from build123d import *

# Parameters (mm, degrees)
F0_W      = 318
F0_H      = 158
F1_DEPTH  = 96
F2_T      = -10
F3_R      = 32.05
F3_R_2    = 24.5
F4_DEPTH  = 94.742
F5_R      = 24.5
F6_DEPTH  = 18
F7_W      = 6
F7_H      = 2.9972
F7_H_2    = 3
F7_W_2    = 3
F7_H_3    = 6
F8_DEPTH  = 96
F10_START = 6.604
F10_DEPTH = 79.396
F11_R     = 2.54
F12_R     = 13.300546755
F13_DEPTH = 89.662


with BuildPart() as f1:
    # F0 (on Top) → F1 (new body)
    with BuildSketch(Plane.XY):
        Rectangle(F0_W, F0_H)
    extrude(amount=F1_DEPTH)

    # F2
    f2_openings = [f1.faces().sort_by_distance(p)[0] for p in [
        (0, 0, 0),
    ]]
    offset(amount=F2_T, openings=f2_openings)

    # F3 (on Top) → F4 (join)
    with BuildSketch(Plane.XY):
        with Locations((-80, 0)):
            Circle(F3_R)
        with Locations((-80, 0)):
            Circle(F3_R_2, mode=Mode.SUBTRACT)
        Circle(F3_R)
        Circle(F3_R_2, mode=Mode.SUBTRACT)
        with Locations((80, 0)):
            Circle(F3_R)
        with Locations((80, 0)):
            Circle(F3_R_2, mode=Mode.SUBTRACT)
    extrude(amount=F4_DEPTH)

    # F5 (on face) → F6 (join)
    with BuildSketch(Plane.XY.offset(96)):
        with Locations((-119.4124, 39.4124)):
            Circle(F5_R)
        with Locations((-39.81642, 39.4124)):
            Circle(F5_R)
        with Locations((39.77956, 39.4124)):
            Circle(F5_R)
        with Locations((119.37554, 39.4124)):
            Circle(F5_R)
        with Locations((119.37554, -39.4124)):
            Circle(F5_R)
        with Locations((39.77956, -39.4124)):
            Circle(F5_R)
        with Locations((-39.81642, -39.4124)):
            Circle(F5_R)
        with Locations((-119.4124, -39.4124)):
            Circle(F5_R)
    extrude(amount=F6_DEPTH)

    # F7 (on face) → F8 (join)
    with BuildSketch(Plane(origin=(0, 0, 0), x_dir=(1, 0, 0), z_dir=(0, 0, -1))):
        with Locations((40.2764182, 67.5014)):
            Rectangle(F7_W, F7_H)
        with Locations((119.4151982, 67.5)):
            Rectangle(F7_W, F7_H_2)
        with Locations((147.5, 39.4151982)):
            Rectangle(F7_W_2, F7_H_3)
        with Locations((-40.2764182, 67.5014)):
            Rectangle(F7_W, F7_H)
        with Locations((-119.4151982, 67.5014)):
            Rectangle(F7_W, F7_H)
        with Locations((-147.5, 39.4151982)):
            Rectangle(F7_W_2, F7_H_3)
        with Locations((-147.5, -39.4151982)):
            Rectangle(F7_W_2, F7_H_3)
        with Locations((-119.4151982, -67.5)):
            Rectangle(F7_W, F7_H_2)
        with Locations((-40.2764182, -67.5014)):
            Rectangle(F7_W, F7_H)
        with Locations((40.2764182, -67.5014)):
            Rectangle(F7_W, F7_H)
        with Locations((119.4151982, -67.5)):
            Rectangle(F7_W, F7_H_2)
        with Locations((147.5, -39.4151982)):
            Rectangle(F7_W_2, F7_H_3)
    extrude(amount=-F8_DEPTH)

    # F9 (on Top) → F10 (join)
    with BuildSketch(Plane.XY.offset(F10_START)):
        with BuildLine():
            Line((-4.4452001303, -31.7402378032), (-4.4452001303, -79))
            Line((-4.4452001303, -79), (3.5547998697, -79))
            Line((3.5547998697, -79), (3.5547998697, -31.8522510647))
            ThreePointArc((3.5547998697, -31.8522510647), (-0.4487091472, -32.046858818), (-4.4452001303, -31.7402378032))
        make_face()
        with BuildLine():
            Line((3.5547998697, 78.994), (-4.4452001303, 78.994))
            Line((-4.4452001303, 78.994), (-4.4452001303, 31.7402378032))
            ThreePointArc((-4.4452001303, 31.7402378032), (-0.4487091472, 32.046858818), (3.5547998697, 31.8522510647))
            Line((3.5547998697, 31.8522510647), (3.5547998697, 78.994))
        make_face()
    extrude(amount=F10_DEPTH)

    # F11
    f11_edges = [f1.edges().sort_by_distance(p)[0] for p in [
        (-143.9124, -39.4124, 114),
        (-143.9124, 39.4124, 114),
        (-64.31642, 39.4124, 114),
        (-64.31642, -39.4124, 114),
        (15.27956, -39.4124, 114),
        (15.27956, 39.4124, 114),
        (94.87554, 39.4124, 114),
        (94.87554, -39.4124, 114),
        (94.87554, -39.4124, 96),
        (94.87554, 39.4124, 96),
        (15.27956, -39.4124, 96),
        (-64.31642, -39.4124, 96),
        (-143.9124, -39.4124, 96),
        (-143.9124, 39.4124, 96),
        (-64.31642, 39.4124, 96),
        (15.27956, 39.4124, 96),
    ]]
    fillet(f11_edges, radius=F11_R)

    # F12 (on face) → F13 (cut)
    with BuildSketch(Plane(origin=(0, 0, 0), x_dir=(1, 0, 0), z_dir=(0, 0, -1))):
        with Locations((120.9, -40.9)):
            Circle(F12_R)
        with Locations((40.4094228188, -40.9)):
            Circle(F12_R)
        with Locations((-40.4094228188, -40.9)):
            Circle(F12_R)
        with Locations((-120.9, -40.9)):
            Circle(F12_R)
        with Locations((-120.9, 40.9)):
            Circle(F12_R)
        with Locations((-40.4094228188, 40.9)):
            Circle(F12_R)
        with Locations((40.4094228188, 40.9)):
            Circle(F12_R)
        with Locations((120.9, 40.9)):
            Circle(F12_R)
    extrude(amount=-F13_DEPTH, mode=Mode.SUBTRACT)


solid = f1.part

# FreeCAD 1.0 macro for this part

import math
import FreeCAD as App
import Part
import Sketcher


def edges_at(feature, points):
    """Names of the edges that pass closest to the given points."""
    edges = feature.Shape.Edges
    near = lambda p: min(range(len(edges)), key=lambda i: edges[i].distToShape(Part.Vertex(*p))[0])
    return sorted({f"Edge{near(p) + 1}" for p in points})


def faces_at(feature, points):
    """Names of the faces that lie closest to the given points."""
    faces = feature.Shape.Faces
    near = lambda p: min(range(len(faces)), key=lambda i: faces[i].distToShape(Part.Vertex(*p))[0])
    return sorted({f"Face{near(p) + 1}" for p in points})

doc = App.newDocument("Part")
body = doc.addObject("PartDesign::Body", "Body")

# Sketch on XY plane
sketch1 = body.newObject("Sketcher::SketchObject", "Sketch")
sketch1.AttachmentSupport = (doc.getObject("XY_Plane"), [""])
sketch1.MapMode = "FlatFace"
sketch1.addGeometry([
    Part.LineSegment(App.Vector(-159, 79, 0), App.Vector(-159, -79, 0)),
    Part.LineSegment(App.Vector(-159, -79, 0), App.Vector(159, -79, 0)),
    Part.LineSegment(App.Vector(159, -79, 0), App.Vector(159, 79, 0)),
    Part.LineSegment(App.Vector(159, 79, 0), App.Vector(-159, 79, 0)),
], False)
sketch1.addConstraint([
    Sketcher.Constraint("Coincident", 0, 2, 1, 1),
    Sketcher.Constraint("Coincident", 1, 2, 2, 1),
    Sketcher.Constraint("Coincident", 2, 2, 3, 1),
    Sketcher.Constraint("Coincident", 3, 2, 0, 1),
    Sketcher.Constraint("Vertical", 0),
    Sketcher.Constraint("Horizontal", 1),
    Sketcher.Constraint("Vertical", 2),
    Sketcher.Constraint("Horizontal", 3),
    Sketcher.Constraint("Symmetric", 0, 2, 2, 2, -1, 1),
    Sketcher.Constraint("DistanceX", 1, 1, 1, 2, 318.0),
    Sketcher.Constraint("DistanceY", 0, 2, 0, 1, 158.0),
])
pad1 = body.newObject("PartDesign::Pad", "Pad")
pad1.Profile = sketch1
pad1.Length = 96
doc.recompute()

thickness = body.newObject("PartDesign::Thickness", "Thickness")
thickness.Base = (pad1, faces_at(pad1, [(0, 0, 0)]))
thickness.Value = 10
thickness.Reversed = True
thickness.Join = "Arc"

# Sketch on XY plane
sketch2 = body.newObject("Sketcher::SketchObject", "Sketch001")
sketch2.AttachmentSupport = (doc.getObject("XY_Plane"), [""])
sketch2.MapMode = "FlatFace"
sketch2.addGeometry([
    Part.Circle(App.Vector(-80, 0, 0), App.Vector(0, 0, 1), 32),  # 0
    Part.Circle(App.Vector(-80, 0, 0), App.Vector(0, 0, 1), 24),  # 1
    Part.Circle(App.Vector(0, 0, 0), App.Vector(0, 0, 1), 32),  # 2
    Part.Circle(App.Vector(0, 0, 0), App.Vector(0, 0, 1), 24),  # 3
    Part.Circle(App.Vector(80, 0, 0), App.Vector(0, 0, 1), 32),  # 4
    Part.Circle(App.Vector(80, 0, 0), App.Vector(0, 0, 1), 24),  # 5
], False)
sketch2.addConstraint([
    Sketcher.Constraint("Coincident", 2, 3, -1, 1),
    Sketcher.Constraint("Coincident", 3, 3, -1, 1),
    Sketcher.Constraint("Coincident", 1, 3, 0, 3),
    Sketcher.Constraint("Coincident", 5, 3, 4, 3),
    Sketcher.Constraint("Equal", 0, 2),
    Sketcher.Constraint("Equal", 1, 3),
    Sketcher.Constraint("Equal", 2, 4),
    Sketcher.Constraint("Equal", 3, 5),
    Sketcher.Constraint("Symmetric", 0, 3, 4, 3, -1, 1),
    Sketcher.Constraint("PointOnObject", 0, 3, -1),
    Sketcher.Constraint("Diameter", 1, 49.0),
    Sketcher.Constraint("Diameter", 0, 64.1),
    Sketcher.Constraint("DistanceX", 0, 3, -1, 1, 80.0),
])
pad2 = body.newObject("PartDesign::Pad", "Pad001")
pad2.Profile = sketch2
pad2.Length = 94.742

# Sketch on XY plane
sketch3 = body.newObject("Sketcher::SketchObject", "Sketch002")
sketch3.AttachmentSupport = (doc.getObject("XY_Plane"), [""])
sketch3.MapMode = "FlatFace"
sketch3.AttachmentOffset = App.Placement(App.Vector(0, 0, 96), App.Rotation())
sketch3.addGeometry([
    Part.Circle(App.Vector(-119, 39, 0), App.Vector(0, 0, 1), 24),  # 0
    Part.Circle(App.Vector(-40, 39, 0), App.Vector(0, 0, 1), 24),  # 1
    Part.Circle(App.Vector(40, 39, 0), App.Vector(0, 0, 1), 24),  # 2
    Part.Circle(App.Vector(119, 39, 0), App.Vector(0, 0, 1), 24),  # 3
    Part.Circle(App.Vector(119, -39, 0), App.Vector(0, 0, 1), 24),  # 4
    Part.Circle(App.Vector(40, -39, 0), App.Vector(0, 0, 1), 24),  # 5
    Part.Circle(App.Vector(-40, -39, 0), App.Vector(0, 0, 1), 24),  # 6
    Part.Circle(App.Vector(-119, -39, 0), App.Vector(0, 0, 1), 24),  # 7
], False)
sketch3.addConstraint([
    Sketcher.Constraint("Equal", 0, 1),
    Sketcher.Constraint("Equal", 1, 2),
    Sketcher.Constraint("Equal", 2, 3),
    Sketcher.Constraint("Equal", 3, 4),
    Sketcher.Constraint("Equal", 4, 5),
    Sketcher.Constraint("Equal", 5, 6),
    Sketcher.Constraint("Equal", 6, 7),
    Sketcher.Constraint("Symmetric", 3, 3, 4, 3, -1),
    Sketcher.Constraint("Symmetric", 2, 3, 5, 3, -1),
    Sketcher.Constraint("Symmetric", 1, 3, 6, 3, -1),
    Sketcher.Constraint("Symmetric", 0, 3, 7, 3, -1),
    Sketcher.Constraint("Horizontal", 0, 3, 1, 3),
    Sketcher.Constraint("Horizontal", 1, 3, 2, 3),
    Sketcher.Constraint("Horizontal", 2, 3, 3, 3),
    Sketcher.Constraint("Diameter", 0, 49.0),
    Sketcher.Constraint("DistanceX", 0, 3, -1, 1, 119.4124),
    Sketcher.Constraint("DistanceY", -1, 1, 0, 3, 39.4124),
    Sketcher.Constraint("DistanceX", 1, 3, -1, 1, 39.81642),
    Sketcher.Constraint("DistanceX", -1, 1, 2, 3, 39.77956),
    Sketcher.Constraint("DistanceX", -1, 1, 3, 3, 119.37554),
])
pad3 = body.newObject("PartDesign::Pad", "Pad002")
pad3.Profile = sketch3
pad3.Length = 18

# Sketch on XY plane
sketch4 = body.newObject("Sketcher::SketchObject", "Sketch003")
sketch4.AttachmentSupport = (doc.getObject("XY_Plane"), [""])
sketch4.MapMode = "FlatFace"
sketch4.addGeometry([
    Part.LineSegment(App.Vector(37.3, -69, 0), App.Vector(37.3, -66, 0)),  # 0
    Part.LineSegment(App.Vector(37.3, -66, 0), App.Vector(43.3, -66, 0)),  # 1
    Part.LineSegment(App.Vector(43.3, -66, 0), App.Vector(43.3, -69, 0)),  # 2
    Part.LineSegment(App.Vector(43.3, -69, 0), App.Vector(37.3, -69, 0)),  # 3
    Part.LineSegment(App.Vector(116.4, -69, 0), App.Vector(116.4, -66, 0)),  # 4
    Part.LineSegment(App.Vector(116.4, -66, 0), App.Vector(122.4, -66, 0)),  # 5
    Part.LineSegment(App.Vector(122.4, -66, 0), App.Vector(122.4, -69, 0)),  # 6
    Part.LineSegment(App.Vector(122.4, -69, 0), App.Vector(116.4, -69, 0)),  # 7
    Part.LineSegment(App.Vector(146, -42.4, 0), App.Vector(146, -36.4, 0)),  # 8
    Part.LineSegment(App.Vector(146, -36.4, 0), App.Vector(149, -36.4, 0)),  # 9
    Part.LineSegment(App.Vector(149, -36.4, 0), App.Vector(149, -42.4, 0)),  # 10
    Part.LineSegment(App.Vector(149, -42.4, 0), App.Vector(146, -42.4, 0)),  # 11
    Part.LineSegment(App.Vector(-43.3, -69, 0), App.Vector(-43.3, -66, 0)),  # 12
    Part.LineSegment(App.Vector(-43.3, -66, 0), App.Vector(-37.3, -66, 0)),  # 13
    Part.LineSegment(App.Vector(-37.3, -66, 0), App.Vector(-37.3, -69, 0)),  # 14
    Part.LineSegment(App.Vector(-37.3, -69, 0), App.Vector(-43.3, -69, 0)),  # 15
    Part.LineSegment(App.Vector(-122.4, -69, 0), App.Vector(-122.4, -66, 0)),  # 16
    Part.LineSegment(App.Vector(-122.4, -66, 0), App.Vector(-116.4, -66, 0)),  # 17
    Part.LineSegment(App.Vector(-116.4, -66, 0), App.Vector(-116.4, -69, 0)),  # 18
    Part.LineSegment(App.Vector(-116.4, -69, 0), App.Vector(-122.4, -69, 0)),  # 19
    Part.LineSegment(App.Vector(-149, -42.4, 0), App.Vector(-149, -36.4, 0)),  # 20
    Part.LineSegment(App.Vector(-149, -36.4, 0), App.Vector(-146, -36.4, 0)),  # 21
    Part.LineSegment(App.Vector(-146, -36.4, 0), App.Vector(-146, -42.4, 0)),  # 22
    Part.LineSegment(App.Vector(-146, -42.4, 0), App.Vector(-149, -42.4, 0)),  # 23
    Part.LineSegment(App.Vector(-149, 36.4, 0), App.Vector(-149, 42.4, 0)),  # 24
    Part.LineSegment(App.Vector(-149, 42.4, 0), App.Vector(-146, 42.4, 0)),  # 25
    Part.LineSegment(App.Vector(-146, 42.4, 0), App.Vector(-146, 36.4, 0)),  # 26
    Part.LineSegment(App.Vector(-146, 36.4, 0), App.Vector(-149, 36.4, 0)),  # 27
    Part.LineSegment(App.Vector(-122.4, 66, 0), App.Vector(-122.4, 69, 0)),  # 28
    Part.LineSegment(App.Vector(-122.4, 69, 0), App.Vector(-116.4, 69, 0)),  # 29
    Part.LineSegment(App.Vector(-116.4, 69, 0), App.Vector(-116.4, 66, 0)),  # 30
    Part.LineSegment(App.Vector(-116.4, 66, 0), App.Vector(-122.4, 66, 0)),  # 31
    Part.LineSegment(App.Vector(-43.3, 66, 0), App.Vector(-43.3, 69, 0)),  # 32
    Part.LineSegment(App.Vector(-43.3, 69, 0), App.Vector(-37.3, 69, 0)),  # 33
    Part.LineSegment(App.Vector(-37.3, 69, 0), App.Vector(-37.3, 66, 0)),  # 34
    Part.LineSegment(App.Vector(-37.3, 66, 0), App.Vector(-43.3, 66, 0)),  # 35
    Part.LineSegment(App.Vector(37.3, 66, 0), App.Vector(37.3, 69, 0)),  # 36
    Part.LineSegment(App.Vector(37.3, 69, 0), App.Vector(43.3, 69, 0)),  # 37
    Part.LineSegment(App.Vector(43.3, 69, 0), App.Vector(43.3, 66, 0)),  # 38
    Part.LineSegment(App.Vector(43.3, 66, 0), App.Vector(37.3, 66, 0)),  # 39
    Part.LineSegment(App.Vector(116.4, 66, 0), App.Vector(116.4, 69, 0)),  # 40
    Part.LineSegment(App.Vector(116.4, 69, 0), App.Vector(122.4, 69, 0)),  # 41
    Part.LineSegment(App.Vector(122.4, 69, 0), App.Vector(122.4, 66, 0)),  # 42
    Part.LineSegment(App.Vector(122.4, 66, 0), App.Vector(116.4, 66, 0)),  # 43
    Part.LineSegment(App.Vector(146, 36.4, 0), App.Vector(146, 42.4, 0)),  # 44
    Part.LineSegment(App.Vector(146, 42.4, 0), App.Vector(149, 42.4, 0)),  # 45
    Part.LineSegment(App.Vector(149, 42.4, 0), App.Vector(149, 36.4, 0)),  # 46
    Part.LineSegment(App.Vector(149, 36.4, 0), App.Vector(146, 36.4, 0)),  # 47
], False)
sketch4.addConstraint([
    Sketcher.Constraint("Coincident", 0, 2, 1, 1),
    Sketcher.Constraint("Coincident", 1, 2, 2, 1),
    Sketcher.Constraint("Coincident", 2, 2, 3, 1),
    Sketcher.Constraint("Coincident", 3, 2, 0, 1),
    Sketcher.Constraint("Coincident", 4, 2, 5, 1),
    Sketcher.Constraint("Coincident", 5, 2, 6, 1),
    Sketcher.Constraint("Coincident", 6, 2, 7, 1),
    Sketcher.Constraint("Coincident", 7, 2, 4, 1),
    Sketcher.Constraint("Coincident", 8, 2, 9, 1),
    Sketcher.Constraint("Coincident", 9, 2, 10, 1),
    Sketcher.Constraint("Coincident", 10, 2, 11, 1),
    Sketcher.Constraint("Coincident", 11, 2, 8, 1),
    Sketcher.Constraint("Coincident", 12, 2, 13, 1),
    Sketcher.Constraint("Coincident", 13, 2, 14, 1),
    Sketcher.Constraint("Coincident", 14, 2, 15, 1),
    Sketcher.Constraint("Coincident", 15, 2, 12, 1),
    Sketcher.Constraint("Coincident", 16, 2, 17, 1),
    Sketcher.Constraint("Coincident", 17, 2, 18, 1),
    Sketcher.Constraint("Coincident", 18, 2, 19, 1),
    Sketcher.Constraint("Coincident", 19, 2, 16, 1),
    Sketcher.Constraint("Coincident", 20, 2, 21, 1),
    Sketcher.Constraint("Coincident", 21, 2, 22, 1),
    Sketcher.Constraint("Coincident", 22, 2, 23, 1),
    Sketcher.Constraint("Coincident", 23, 2, 20, 1),
    Sketcher.Constraint("Coincident", 24, 2, 25, 1),
    Sketcher.Constraint("Coincident", 25, 2, 26, 1),
    Sketcher.Constraint("Coincident", 26, 2, 27, 1),
    Sketcher.Constraint("Coincident", 27, 2, 24, 1),
    Sketcher.Constraint("Coincident", 28, 2, 29, 1),
    Sketcher.Constraint("Coincident", 29, 2, 30, 1),
    Sketcher.Constraint("Coincident", 30, 2, 31, 1),
    Sketcher.Constraint("Coincident", 31, 2, 28, 1),
    Sketcher.Constraint("Coincident", 32, 2, 33, 1),
    Sketcher.Constraint("Coincident", 33, 2, 34, 1),
    Sketcher.Constraint("Coincident", 34, 2, 35, 1),
    Sketcher.Constraint("Coincident", 35, 2, 32, 1),
    Sketcher.Constraint("Coincident", 36, 2, 37, 1),
    Sketcher.Constraint("Coincident", 37, 2, 38, 1),
    Sketcher.Constraint("Coincident", 38, 2, 39, 1),
    Sketcher.Constraint("Coincident", 39, 2, 36, 1),
    Sketcher.Constraint("Coincident", 40, 2, 41, 1),
    Sketcher.Constraint("Coincident", 41, 2, 42, 1),
    Sketcher.Constraint("Coincident", 42, 2, 43, 1),
    Sketcher.Constraint("Coincident", 43, 2, 40, 1),
    Sketcher.Constraint("Coincident", 44, 2, 45, 1),
    Sketcher.Constraint("Coincident", 45, 2, 46, 1),
    Sketcher.Constraint("Coincident", 46, 2, 47, 1),
    Sketcher.Constraint("Coincident", 47, 2, 44, 1),
    Sketcher.Constraint("Vertical", 0),
    Sketcher.Constraint("Horizontal", 1),
    Sketcher.Constraint("Vertical", 2),
    Sketcher.Constraint("Horizontal", 3),
    Sketcher.Constraint("Vertical", 4),
    Sketcher.Constraint("Horizontal", 5),
    Sketcher.Constraint("Vertical", 6),
    Sketcher.Constraint("Horizontal", 7),
    Sketcher.Constraint("Vertical", 8),
    Sketcher.Constraint("Horizontal", 9),
    Sketcher.Constraint("Vertical", 10),
    Sketcher.Constraint("Horizontal", 11),
    Sketcher.Constraint("Vertical", 12),
    Sketcher.Constraint("Horizontal", 13),
    Sketcher.Constraint("Vertical", 14),
    Sketcher.Constraint("Horizontal", 15),
    Sketcher.Constraint("Vertical", 16),
    Sketcher.Constraint("Horizontal", 17),
    Sketcher.Constraint("Vertical", 18),
    Sketcher.Constraint("Horizontal", 19),
    Sketcher.Constraint("Vertical", 20),
    Sketcher.Constraint("Horizontal", 21),
    Sketcher.Constraint("Vertical", 22),
    Sketcher.Constraint("Horizontal", 23),
    Sketcher.Constraint("Vertical", 24),
    Sketcher.Constraint("Horizontal", 25),
    Sketcher.Constraint("Vertical", 26),
    Sketcher.Constraint("Horizontal", 27),
    Sketcher.Constraint("Vertical", 28),
    Sketcher.Constraint("Horizontal", 29),
    Sketcher.Constraint("Vertical", 30),
    Sketcher.Constraint("Horizontal", 31),
    Sketcher.Constraint("Vertical", 32),
    Sketcher.Constraint("Horizontal", 33),
    Sketcher.Constraint("Vertical", 34),
    Sketcher.Constraint("Horizontal", 35),
    Sketcher.Constraint("Vertical", 36),
    Sketcher.Constraint("Horizontal", 37),
    Sketcher.Constraint("Vertical", 38),
    Sketcher.Constraint("Horizontal", 39),
    Sketcher.Constraint("Vertical", 40),
    Sketcher.Constraint("Horizontal", 41),
    Sketcher.Constraint("Vertical", 42),
    Sketcher.Constraint("Horizontal", 43),
    Sketcher.Constraint("Vertical", 44),
    Sketcher.Constraint("Horizontal", 45),
    Sketcher.Constraint("Vertical", 46),
    Sketcher.Constraint("Horizontal", 47),
    Sketcher.Constraint("Symmetric", 10, 2, 24, 2, -1, 1),
    Sketcher.Constraint("Symmetric", 8, 2, 26, 2, -1, 1),
    Sketcher.Constraint("Symmetric", 6, 2, 28, 2, -1, 1),
    Sketcher.Constraint("Symmetric", 4, 2, 30, 2, -1, 1),
    Sketcher.Constraint("Symmetric", 2, 2, 32, 2, -1, 1),
    Sketcher.Constraint("Symmetric", 0, 2, 34, 2, -1, 1),
    Sketcher.Constraint("Symmetric", 14, 2, 36, 2, -1, 1),
    Sketcher.Constraint("Symmetric", 12, 2, 38, 2, -1, 1),
    Sketcher.Constraint("Symmetric", 18, 2, 40, 2, -1, 1),
    Sketcher.Constraint("Symmetric", 22, 2, 44, 2, -1, 1),
    Sketcher.Constraint("Symmetric", 20, 2, 46, 2, -1, 1),
    Sketcher.Constraint("Symmetric", 1, 2, 12, 2, -2),
    Sketcher.Constraint("Symmetric", 3, 2, 14, 2, -2),
    Sketcher.Constraint("Symmetric", 7, 2, 18, 2, -2),
    Sketcher.Constraint("Symmetric", 9, 2, 20, 2, -2),
    Sketcher.Constraint("Symmetric", 11, 2, 22, 2, -2),
    Sketcher.Constraint("Symmetric", 31, 2, 42, 2, -2),
    Sketcher.Constraint("Horizontal", 3, 2, 6, 2),
    Sketcher.Constraint("Horizontal", 13, 2, 16, 2),
    Sketcher.Constraint("Vertical", 19, 2, 28, 2),
    Sketcher.Constraint("Equal", 3, 5),
    Sketcher.Constraint("Equal", 47, 4),
    Sketcher.Constraint("Equal", 43, 8),
    Sketcher.Constraint("DistanceX", 1, 1, 1, 2, 6.0),
    Sketcher.Constraint("DistanceX", 9, 1, 9, 2, 3.0),
    Sketcher.Constraint("DistanceY", 2, 2, -1, 1, 69.0),
    Sketcher.Constraint("DistanceX", -1, 1, 8, 2, 146.0),
    Sketcher.Constraint("DistanceY", 0, 1, 0, 2, 2.9972),
    Sketcher.Constraint("DistanceY", 16, 2, 24, 2, 108.417998),
    Sketcher.Constraint("DistanceX", -1, 1, 4, 2, 116.415198),
    Sketcher.Constraint("DistanceX", -1, 1, 0, 2, 37.276418),
])
pad4 = body.newObject("PartDesign::Pad", "Pad003")
pad4.Profile = sketch4
pad4.Length = 96

# Sketch on XY plane
sketch5 = body.newObject("Sketcher::SketchObject", "Sketch004")
sketch5.AttachmentSupport = (doc.getObject("XY_Plane"), [""])
sketch5.MapMode = "FlatFace"
sketch5.AttachmentOffset = App.Placement(App.Vector(0, 0, 6.604), App.Rotation())
sketch5.addGeometry([
    Part.LineSegment(App.Vector(-4, -32, 0), App.Vector(-4, -79, 0)),  # 0
    Part.LineSegment(App.Vector(-4, -79, 0), App.Vector(4, -79, 0)),  # 1
    Part.LineSegment(App.Vector(4, -79, 0), App.Vector(4, -32, 0)),  # 2
    Part.ArcOfCircle(Part.Circle(App.Vector(0, 0, 0), App.Vector(0, 0, 1), 32), math.radians(-97.97), math.radians(-83.63)),  # 3
    Part.LineSegment(App.Vector(4, 79, 0), App.Vector(-4, 79, 0)),  # 4
    Part.LineSegment(App.Vector(-4, 79, 0), App.Vector(-4, 32, 0)),  # 5
    Part.ArcOfCircle(Part.Circle(App.Vector(0, 0, 0), App.Vector(0, 0, 1), 32), math.radians(83.63), math.radians(97.97)),  # 6
    Part.LineSegment(App.Vector(4, 32, 0), App.Vector(4, 79, 0)),  # 7
], False)
sketch5.addConstraint([
    Sketcher.Constraint("Coincident", 0, 2, 1, 1),
    Sketcher.Constraint("Coincident", 1, 2, 2, 1),
    Sketcher.Constraint("Coincident", 2, 2, 3, 2),
    Sketcher.Constraint("Coincident", 3, 1, 0, 1),
    Sketcher.Constraint("Coincident", 4, 2, 5, 1),
    Sketcher.Constraint("Coincident", 5, 2, 6, 2),
    Sketcher.Constraint("Coincident", 6, 1, 7, 1),
    Sketcher.Constraint("Coincident", 7, 2, 4, 1),
    Sketcher.Constraint("Vertical", 0),
    Sketcher.Constraint("Horizontal", 1),
    Sketcher.Constraint("Vertical", 2),
    Sketcher.Constraint("Horizontal", 4),
    Sketcher.Constraint("Vertical", 5),
    Sketcher.Constraint("Vertical", 7),
    Sketcher.Constraint("Coincident", 3, 3, -1, 1),
    Sketcher.Constraint("Coincident", 6, 3, -1, 1),
    Sketcher.Constraint("Equal", 3, 6),
    Sketcher.Constraint("Vertical", 3, 1, 4, 2),
    Sketcher.Constraint("Vertical", 2, 2, 6, 1),
    Sketcher.Constraint("DistanceX", 1, 1, 1, 2, 8.0),
    Sketcher.Constraint("Radius", 3, 32.05),
    Sketcher.Constraint("DistanceY", 0, 2, -1, 1, 79.0),
    Sketcher.Constraint("DistanceY", -1, 1, 4, 2, 78.994),
    Sketcher.Constraint("DistanceY", 2, 1, 2, 2, 47.147749),
])
pad5 = body.newObject("PartDesign::Pad", "Pad004")
pad5.Profile = sketch5
pad5.Length = 79.396
doc.recompute()

fillet = body.newObject("PartDesign::Fillet", "Fillet")
fillet.Base = (pad5, edges_at(pad5, [
    (-143.912, -39.412, 114),
    (-143.912, 39.412, 114),
    (-64.316, 39.412, 114),
    (-64.316, -39.412, 114),
    (15.28, -39.412, 114),
    (15.28, 39.412, 114),
    (94.876, 39.412, 114),
    (94.876, -39.412, 114),
    (94.876, -39.412, 96),
    (94.876, 39.412, 96),
    (15.28, -39.412, 96),
    (-64.316, -39.412, 96),
    (-143.912, -39.412, 96),
    (-143.912, 39.412, 96),
    (-64.316, 39.412, 96),
    (15.28, 39.412, 96),
]))
fillet.Radius = 2.54

# Sketch on XY plane
sketch6 = body.newObject("Sketcher::SketchObject", "Sketch005")
sketch6.AttachmentSupport = (doc.getObject("XY_Plane"), [""])
sketch6.MapMode = "FlatFace"
sketch6.addGeometry([
    Part.Circle(App.Vector(121, 41, 0), App.Vector(0, 0, 1), 13),  # 0
    Part.Circle(App.Vector(40, 41, 0), App.Vector(0, 0, 1), 13),  # 1
    Part.Circle(App.Vector(-40, 41, 0), App.Vector(0, 0, 1), 13),  # 2
    Part.Circle(App.Vector(-121, 41, 0), App.Vector(0, 0, 1), 13),  # 3
    Part.Circle(App.Vector(-121, -41, 0), App.Vector(0, 0, 1), 13),  # 4
    Part.Circle(App.Vector(-40, -41, 0), App.Vector(0, 0, 1), 13),  # 5
    Part.Circle(App.Vector(40, -41, 0), App.Vector(0, 0, 1), 13),  # 6
    Part.Circle(App.Vector(121, -41, 0), App.Vector(0, 0, 1), 13),  # 7
], False)
sketch6.addConstraint([
    Sketcher.Constraint("Equal", 0, 1),
    Sketcher.Constraint("Equal", 1, 2),
    Sketcher.Constraint("Equal", 2, 3),
    Sketcher.Constraint("Equal", 3, 4),
    Sketcher.Constraint("Equal", 4, 5),
    Sketcher.Constraint("Equal", 5, 6),
    Sketcher.Constraint("Equal", 6, 7),
    Sketcher.Constraint("Symmetric", 0, 3, 4, 3, -1, 1),
    Sketcher.Constraint("Symmetric", 1, 3, 5, 3, -1, 1),
    Sketcher.Constraint("Symmetric", 2, 3, 6, 3, -1, 1),
    Sketcher.Constraint("Symmetric", 3, 3, 7, 3, -1, 1),
    Sketcher.Constraint("Symmetric", 1, 3, 2, 3, -2),
    Sketcher.Constraint("Symmetric", 0, 3, 3, 3, -2),
    Sketcher.Constraint("Horizontal", 0, 3, 1, 3),
    Sketcher.Constraint("DistanceX", -1, 1, 0, 3, 120.9),
    Sketcher.Constraint("DistanceY", -1, 1, 0, 3, 40.9),
    Sketcher.Constraint("Diameter", 0, 26.601094),
    Sketcher.Constraint("DistanceX", -1, 1, 1, 3, 40.409423),
])
pocket1 = body.newObject("PartDesign::Pocket", "Pocket")
pocket1.Profile = sketch6
pocket1.Length = 89.662
pocket1.Reversed = True

doc.recompute()
